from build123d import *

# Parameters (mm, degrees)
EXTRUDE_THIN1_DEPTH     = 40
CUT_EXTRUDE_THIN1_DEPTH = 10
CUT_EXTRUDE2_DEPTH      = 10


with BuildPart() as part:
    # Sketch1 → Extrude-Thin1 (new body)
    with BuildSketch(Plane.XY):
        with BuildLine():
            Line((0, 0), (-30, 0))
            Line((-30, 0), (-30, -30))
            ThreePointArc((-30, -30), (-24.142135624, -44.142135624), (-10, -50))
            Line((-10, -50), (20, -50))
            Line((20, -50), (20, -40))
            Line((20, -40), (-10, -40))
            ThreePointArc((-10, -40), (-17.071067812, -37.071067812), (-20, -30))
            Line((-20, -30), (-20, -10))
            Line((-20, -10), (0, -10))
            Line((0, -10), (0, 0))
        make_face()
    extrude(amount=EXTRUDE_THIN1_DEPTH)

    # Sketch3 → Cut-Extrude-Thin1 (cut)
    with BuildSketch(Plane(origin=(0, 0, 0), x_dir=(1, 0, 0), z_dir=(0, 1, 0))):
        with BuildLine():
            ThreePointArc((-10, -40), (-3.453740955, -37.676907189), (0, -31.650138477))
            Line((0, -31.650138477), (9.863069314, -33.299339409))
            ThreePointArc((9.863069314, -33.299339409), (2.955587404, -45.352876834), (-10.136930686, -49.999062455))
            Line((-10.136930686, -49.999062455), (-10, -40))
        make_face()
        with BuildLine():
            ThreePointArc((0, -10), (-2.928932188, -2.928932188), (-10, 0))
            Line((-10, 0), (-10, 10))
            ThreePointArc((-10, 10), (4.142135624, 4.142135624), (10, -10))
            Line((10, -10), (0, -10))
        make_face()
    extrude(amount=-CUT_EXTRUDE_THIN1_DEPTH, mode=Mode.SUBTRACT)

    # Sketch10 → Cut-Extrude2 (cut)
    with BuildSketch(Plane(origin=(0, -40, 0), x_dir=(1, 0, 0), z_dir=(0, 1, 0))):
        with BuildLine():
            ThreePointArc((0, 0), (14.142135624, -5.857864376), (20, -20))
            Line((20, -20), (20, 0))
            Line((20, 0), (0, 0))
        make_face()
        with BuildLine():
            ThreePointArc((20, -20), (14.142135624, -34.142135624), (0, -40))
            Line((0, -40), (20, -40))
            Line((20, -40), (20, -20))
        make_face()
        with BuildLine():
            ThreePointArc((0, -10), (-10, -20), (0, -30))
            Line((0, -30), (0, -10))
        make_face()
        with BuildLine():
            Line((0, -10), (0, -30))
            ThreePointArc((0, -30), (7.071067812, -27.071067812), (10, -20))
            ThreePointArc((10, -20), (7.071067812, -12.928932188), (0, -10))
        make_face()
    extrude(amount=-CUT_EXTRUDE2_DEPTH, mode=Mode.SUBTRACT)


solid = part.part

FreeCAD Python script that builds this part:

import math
import FreeCAD as App
import Part
import Sketcher
from FreeCAD import Vector
Q = App.Units.Quantity

doc = App.newDocument("Part")
body = doc.addObject("PartDesign::Body", "Body")

# Sketch on XY plane
sketch1 = body.newObject("Sketcher::SketchObject", "Sketch")
sketch1.AttachmentSupport = (doc.getObject("XY_Plane"), [""])
sketch1.MapMode = "FlatFace"
sketch1.addGeometry([
    Part.LineSegment(Vector(0, 0, 0), Vector(-30, 0, 0)),  # 0
    Part.LineSegment(Vector(-30, 0, 0), Vector(-30, -30, 0)),  # 1
    Part.ArcOfCircle(Part.Circle(Vector(-10, -30, 0), Vector(0, 0, 1), 20), math.radians(180), math.radians(270)),  # 2
    Part.LineSegment(Vector(-10, -50, 0), Vector(20, -50, 0)),  # 3
    Part.LineSegment(Vector(20, -50, 0), Vector(20, -40, 0)),  # 4
    Part.LineSegment(Vector(20, -40, 0), Vector(-10, -40, 0)),  # 5
    Part.ArcOfCircle(Part.Circle(Vector(-10, -30, 0), Vector(0, 0, 1), 10), math.radians(180), math.radians(270)),  # 6
    Part.LineSegment(Vector(-20, -30, 0), Vector(-20, -10, 0)),  # 7
    Part.LineSegment(Vector(-20, -10, 0), Vector(0, -10, 0)),  # 8
    Part.LineSegment(Vector(0, -10, 0), Vector(0, 0, 0)),  # 9
], False)
sketch1.addConstraint([
    Sketcher.Constraint("Coincident", 0, 2, 1, 1),
    Sketcher.Constraint("Tangent", 1, 2, 2, 1),
    Sketcher.Constraint("Tangent", 2, 2, 3, 1),
    Sketcher.Constraint("Coincident", 3, 2, 4, 1),
    Sketcher.Constraint("Coincident", 4, 2, 5, 1),
    Sketcher.Constraint("Tangent", 5, 2, 6, 2),
    Sketcher.Constraint("Tangent", 6, 1, 7, 1),
    Sketcher.Constraint("Coincident", 7, 2, 8, 1),
    Sketcher.Constraint("Coincident", 8, 2, 9, 1),
    Sketcher.Constraint("Coincident", 9, 2, 0, 1),
    Sketcher.Constraint("Horizontal", 0),
    Sketcher.Constraint("Vertical", 1),
    Sketcher.Constraint("Horizontal", 3),
    Sketcher.Constraint("Vertical", 4),
    Sketcher.Constraint("Horizontal", 5),
    Sketcher.Constraint("Vertical", 7),
    Sketcher.Constraint("Horizontal", 8),
    Sketcher.Constraint("Vertical", 9),
    Sketcher.Constraint("Coincident", 9, 2, -1, 1),
    Sketcher.Constraint("Coincident", 6, 3, 2, 3),
    Sketcher.Constraint("Equal", 0, 3),
    Sketcher.Constraint("Equal", 5, 1),
    Sketcher.Constraint("Equal", 8, 7),
    Sketcher.Constraint("Radius", 2, Q("20 mm")),
    Sketcher.Constraint("Radius", 6, Q("10 mm")),
    Sketcher.Constraint("DistanceX", 0, 2, 0, 1, Q("30 mm")),
])
pad1 = body.newObject("PartDesign::Pad", "Pad")
pad1.Profile = sketch1
pad1.Length = 40

# Sketch on XZ plane
sketch2 = body.newObject("Sketcher::SketchObject", "Sketch001")
sketch2.AttachmentSupport = (doc.getObject("XZ_Plane"), [""])
sketch2.MapMode = "FlatFace"
sketch2.addGeometry([
    Part.ArcOfCircle(Part.Circle(Vector(-9.863069, 30.000938, 0), Vector(0, 0, 1), 10), math.radians(9.492593), math.radians(90.78458)),  # 0
    Part.LineSegment(Vector(-10, 40, 0), Vector(-10.136931, 49.999062, 0)),  # 1
    Part.ArcOfCircle(Part.Circle(Vector(-9.863069, 30.000938, 0), Vector(0, 0, 1), 20), math.radians(9.492593), math.radians(90.78458)),  # 2
    Part.LineSegment(Vector(9.863069, 33.299339, 0), Vector(0, 31.650138, 0)),  # 3
    Part.ArcOfCircle(Part.Circle(Vector(-10, 10, 0), Vector(0, 0, 1), 10), math.radians(-90), math.radians(0)),  # 4
    Part.LineSegment(Vector(0, 10, 0), Vector(10, 10, 0)),  # 5
    Part.ArcOfCircle(Part.Circle(Vector(-10, 10, 0), Vector(0, 0, 1), 20), math.radians(-90), math.radians(0)),  # 6
    Part.LineSegment(Vector(-10, -10, 0), Vector(-10, 0, 0)),  # 7
], False)
sketch2.addConstraint([
    Sketcher.Constraint("Coincident", 0, 2, 1, 1),
    Sketcher.Constraint("Coincident", 1, 2, 2, 2),
    Sketcher.Constraint("Coincident", 2, 1, 3, 1),
    Sketcher.Constraint("Coincident", 3, 2, 0, 1),
    Sketcher.Constraint("Coincident", 4, 2, 5, 1),
    Sketcher.Constraint("Coincident", 5, 2, 6, 2),
    Sketcher.Constraint("Coincident", 6, 1, 7, 1),
    Sketcher.Constraint("Coincident", 7, 2, 4, 1),
    Sketcher.Constraint("Horizontal", 5),
    Sketcher.Constraint("Vertical", 7),
    Sketcher.Constraint("Coincident", 2, 3, 0, 3),
    Sketcher.Constraint("Coincident", 6, 3, 4, 3),
    Sketcher.Constraint("Equal", 0, 4),
    Sketcher.Constraint("Equal", 2, 6),
    Sketcher.Constraint("Symmetric", 5, 2, 6, 1, -1, 1),
    Sketcher.Constraint("PointOnObject", 3, 2, -2),
    Sketcher.Constraint("PointOnObject", 4, 2, -2),
    Sketcher.Constraint("PointOnObject", 7, 2, -1),
    Sketcher.Constraint("Horizontal", 6, 3, 4, 2),
    Sketcher.Constraint("Vertical", 6, 3, 0, 2),
    Sketcher.Constraint("Radius", 0, Q("10 mm")),
    Sketcher.Constraint("DistanceY", -1, 1, 0, 2, Q("40 mm")),
    Sketcher.Constraint("DistanceX", 1, 2, 2, 1, Q("20 mm")),
    Sketcher.Constraint("DistanceY", 2, 3, 2, 1, Q("3.298402 mm")),
    Sketcher.Constraint("DistanceY", 3, 2, 2, 1, Q("1.649201 mm")),
])
pocket1 = body.newObject("PartDesign::Pocket", "Pocket")
pocket1.Profile = sketch2
pocket1.Length = 10
pocket1.Reversed = True

# Sketch on XZ plane
sketch3 = body.newObject("Sketcher::SketchObject", "Sketch002")
sketch3.AttachmentSupport = (doc.getObject("XZ_Plane"), [""])
sketch3.MapMode = "FlatFace"
sketch3.AttachmentOffset = App.Placement(Vector(0, 0, 40), App.Rotation())
sketch3.addGeometry([
    Part.ArcOfCircle(Part.Circle(Vector(0, 20, 0), Vector(0, 0, 1), 20), math.radians(-90), math.radians(0)),  # 0
    Part.LineSegment(Vector(20, 20, 0), Vector(20, 0, 0)),  # 1
    Part.LineSegment(Vector(20, 0, 0), Vector(0, 0, 0)),  # 2
    Part.ArcOfCircle(Part.Circle(Vector(0, 20, 0), Vector(0, 0, 1), 20), math.radians(0), math.radians(90)),  # 3
    Part.LineSegment(Vector(0, 40, 0), Vector(20, 40, 0)),  # 4
    Part.LineSegment(Vector(20, 40, 0), Vector(20, 20, 0)),  # 5
    Part.ArcOfCircle(Part.Circle(Vector(0, 20, 0), Vector(0, 0, 1), 10), math.radians(90), math.radians(270)),  # 6
    Part.ArcOfCircle(Part.Circle(Vector(0, 20, 0), Vector(0, 0, 1), 10), math.radians(0), math.radians(90)),  # 7
    Part.ArcOfCircle(Part.Circle(Vector(0, 20, 0), Vector(0, 0, 1), 10), math.radians(-90), math.radians(0)),  # 8
], False)
sketch3.addConstraint([
    Sketcher.Constraint("Tangent", 0, 2, 1, 1),
    Sketcher.Constraint("Coincident", 1, 2, 2, 1),
    Sketcher.Constraint("Tangent", 2, 2, 0, 1),
    Sketcher.Constraint("Tangent", 3, 2, 4, 1),
    Sketcher.Constraint("Coincident", 4, 2, 5, 1),
    Sketcher.Constraint("Tangent", 5, 2, 3, 1),
    Sketcher.Constraint("Tangent", 6, 1, 7, 2),
    Sketcher.Constraint("Tangent", 7, 1, 8, 2),
    Sketcher.Constraint("Tangent", 8, 1, 6, 2),
    Sketcher.Constraint("Vertical", 1),
    Sketcher.Constraint("Horizontal", 2),
    Sketcher.Constraint("Horizontal", 4),
    Sketcher.Constraint("Vertical", 5),
    Sketcher.Constraint("Coincident", 2, 2, -1, 1),
    Sketcher.Constraint("Coincident", 3, 3, 0, 3),
    Sketcher.Constraint("Coincident", 6, 3, 0, 3),
    Sketcher.Constraint("Equal", 0, 3),
    Sketcher.Constraint("PointOnObject", 6, 1, -2),
    Sketcher.Constraint("PointOnObject", 8, 1, -2),
    Sketcher.Constraint("Horizontal", 5, 2, 7, 1),
    Sketcher.Constraint("Radius", 0, Q("20 mm")),
    Sketcher.Constraint("Radius", 6, Q("10 mm")),
])
pocket2 = body.newObject("PartDesign::Pocket", "Pocket001")
pocket2.Profile = sketch3
pocket2.Length = 10
pocket2.Reversed = True

doc.recompute()
